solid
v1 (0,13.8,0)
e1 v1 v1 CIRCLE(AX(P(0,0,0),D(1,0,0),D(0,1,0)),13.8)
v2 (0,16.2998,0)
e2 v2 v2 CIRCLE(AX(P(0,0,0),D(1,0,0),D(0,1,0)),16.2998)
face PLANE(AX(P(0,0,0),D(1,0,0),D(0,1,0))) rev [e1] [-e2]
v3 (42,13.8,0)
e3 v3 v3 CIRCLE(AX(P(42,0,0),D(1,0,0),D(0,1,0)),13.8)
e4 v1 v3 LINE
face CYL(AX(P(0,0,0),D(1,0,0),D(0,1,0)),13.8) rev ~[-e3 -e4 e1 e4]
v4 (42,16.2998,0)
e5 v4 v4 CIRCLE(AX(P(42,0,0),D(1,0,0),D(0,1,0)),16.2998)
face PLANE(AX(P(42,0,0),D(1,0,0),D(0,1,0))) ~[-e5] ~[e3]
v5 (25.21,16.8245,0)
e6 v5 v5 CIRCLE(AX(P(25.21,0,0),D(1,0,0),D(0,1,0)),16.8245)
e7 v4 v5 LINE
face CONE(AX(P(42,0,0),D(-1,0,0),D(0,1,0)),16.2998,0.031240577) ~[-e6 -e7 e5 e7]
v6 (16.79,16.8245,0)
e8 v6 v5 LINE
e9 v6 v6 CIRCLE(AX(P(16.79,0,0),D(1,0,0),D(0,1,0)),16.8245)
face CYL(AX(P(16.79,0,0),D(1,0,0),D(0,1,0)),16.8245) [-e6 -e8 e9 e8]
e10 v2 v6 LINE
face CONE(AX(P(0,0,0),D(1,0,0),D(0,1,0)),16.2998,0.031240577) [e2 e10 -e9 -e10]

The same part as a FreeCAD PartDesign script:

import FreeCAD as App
import Part
import Sketcher
Q = App.Units.Quantity

doc = App.newDocument("Part")
body = doc.addObject("PartDesign::Body", "Body")

sketch1 = doc.addObject("Sketcher::SketchObject", "Sketch")
body.addObject(sketch1)
sketch1.AttachmentSupport = (doc.XY_Plane, [""])
sketch1.MapMode = "FlatFace"
sketch1.addGeometry(Part.LineSegment(App.Vector(0, 13.8, 0), App.Vector(42, 13.8, 0)), False)
sketch1.addGeometry(Part.LineSegment(App.Vector(42, 13.8, 0), App.Vector(42, 16.3, 0)), False)
sketch1.addGeometry(Part.LineSegment(App.Vector(42, 16.3, 0), App.Vector(25.2, 16.8, 0)), False)
sketch1.addGeometry(Part.LineSegment(App.Vector(25.2, 16.8, 0), App.Vector(16.8, 16.8, 0)), False)
sketch1.addGeometry(Part.LineSegment(App.Vector(16.8, 16.8, 0), App.Vector(0, 16.3, 0)), False)
sketch1.addGeometry(Part.LineSegment(App.Vector(0, 16.3, 0), App.Vector(0, 13.8, 0)), False)
sketch1.addConstraint(Sketcher.Constraint("Coincident", 0, 2, 1, 1))
sketch1.addConstraint(Sketcher.Constraint("Coincident", 1, 2, 2, 1))
sketch1.addConstraint(Sketcher.Constraint("Coincident", 2, 2, 3, 1))
sketch1.addConstraint(Sketcher.Constraint("Coincident", 3, 2, 4, 1))
sketch1.addConstraint(Sketcher.Constraint("Coincident", 4, 2, 5, 1))
sketch1.addConstraint(Sketcher.Constraint("Coincident", 5, 2, 0, 1))
sketch1.addConstraint(Sketcher.Constraint("Horizontal", 0))
sketch1.addConstraint(Sketcher.Constraint("Vertical", 1))
sketch1.addConstraint(Sketcher.Constraint("Horizontal", 3))
sketch1.addConstraint(Sketcher.Constraint("Vertical", 5))
sketch1.addConstraint(Sketcher.Constraint("PointOnObject", 4, 2, -2))
sketch1.addConstraint(Sketcher.Constraint("Horizontal", 1, 2, 4, 2))
sketch1.addConstraint(Sketcher.Constraint("Equal", 2, 4))
sketch1.addConstraint(Sketcher.Constraint("DistanceX", 0, 1, 0, 2, 42.0))
sketch1.addConstraint(Sketcher.Constraint("DistanceX", -1, 1, 3, 2, 16.79))
sketch1.addConstraint(Sketcher.Constraint("DistanceY", -1, 1, 0, 2, 13.8))
sketch1.addConstraint(Sketcher.Constraint("Angle", 2, Q("178.21 deg")))
sketch1.addConstraint(Sketcher.Constraint("DistanceY", 1, 1, 1, 2, 2.4998))
revolution = doc.addObject("PartDesign::Revolution", "Revolution")
body.addObject(revolution)
revolution.Profile = sketch1
revolution.ReferenceAxis = (sketch1, ["H_Axis"])
revolution.Angle = 360

doc.recompute()
